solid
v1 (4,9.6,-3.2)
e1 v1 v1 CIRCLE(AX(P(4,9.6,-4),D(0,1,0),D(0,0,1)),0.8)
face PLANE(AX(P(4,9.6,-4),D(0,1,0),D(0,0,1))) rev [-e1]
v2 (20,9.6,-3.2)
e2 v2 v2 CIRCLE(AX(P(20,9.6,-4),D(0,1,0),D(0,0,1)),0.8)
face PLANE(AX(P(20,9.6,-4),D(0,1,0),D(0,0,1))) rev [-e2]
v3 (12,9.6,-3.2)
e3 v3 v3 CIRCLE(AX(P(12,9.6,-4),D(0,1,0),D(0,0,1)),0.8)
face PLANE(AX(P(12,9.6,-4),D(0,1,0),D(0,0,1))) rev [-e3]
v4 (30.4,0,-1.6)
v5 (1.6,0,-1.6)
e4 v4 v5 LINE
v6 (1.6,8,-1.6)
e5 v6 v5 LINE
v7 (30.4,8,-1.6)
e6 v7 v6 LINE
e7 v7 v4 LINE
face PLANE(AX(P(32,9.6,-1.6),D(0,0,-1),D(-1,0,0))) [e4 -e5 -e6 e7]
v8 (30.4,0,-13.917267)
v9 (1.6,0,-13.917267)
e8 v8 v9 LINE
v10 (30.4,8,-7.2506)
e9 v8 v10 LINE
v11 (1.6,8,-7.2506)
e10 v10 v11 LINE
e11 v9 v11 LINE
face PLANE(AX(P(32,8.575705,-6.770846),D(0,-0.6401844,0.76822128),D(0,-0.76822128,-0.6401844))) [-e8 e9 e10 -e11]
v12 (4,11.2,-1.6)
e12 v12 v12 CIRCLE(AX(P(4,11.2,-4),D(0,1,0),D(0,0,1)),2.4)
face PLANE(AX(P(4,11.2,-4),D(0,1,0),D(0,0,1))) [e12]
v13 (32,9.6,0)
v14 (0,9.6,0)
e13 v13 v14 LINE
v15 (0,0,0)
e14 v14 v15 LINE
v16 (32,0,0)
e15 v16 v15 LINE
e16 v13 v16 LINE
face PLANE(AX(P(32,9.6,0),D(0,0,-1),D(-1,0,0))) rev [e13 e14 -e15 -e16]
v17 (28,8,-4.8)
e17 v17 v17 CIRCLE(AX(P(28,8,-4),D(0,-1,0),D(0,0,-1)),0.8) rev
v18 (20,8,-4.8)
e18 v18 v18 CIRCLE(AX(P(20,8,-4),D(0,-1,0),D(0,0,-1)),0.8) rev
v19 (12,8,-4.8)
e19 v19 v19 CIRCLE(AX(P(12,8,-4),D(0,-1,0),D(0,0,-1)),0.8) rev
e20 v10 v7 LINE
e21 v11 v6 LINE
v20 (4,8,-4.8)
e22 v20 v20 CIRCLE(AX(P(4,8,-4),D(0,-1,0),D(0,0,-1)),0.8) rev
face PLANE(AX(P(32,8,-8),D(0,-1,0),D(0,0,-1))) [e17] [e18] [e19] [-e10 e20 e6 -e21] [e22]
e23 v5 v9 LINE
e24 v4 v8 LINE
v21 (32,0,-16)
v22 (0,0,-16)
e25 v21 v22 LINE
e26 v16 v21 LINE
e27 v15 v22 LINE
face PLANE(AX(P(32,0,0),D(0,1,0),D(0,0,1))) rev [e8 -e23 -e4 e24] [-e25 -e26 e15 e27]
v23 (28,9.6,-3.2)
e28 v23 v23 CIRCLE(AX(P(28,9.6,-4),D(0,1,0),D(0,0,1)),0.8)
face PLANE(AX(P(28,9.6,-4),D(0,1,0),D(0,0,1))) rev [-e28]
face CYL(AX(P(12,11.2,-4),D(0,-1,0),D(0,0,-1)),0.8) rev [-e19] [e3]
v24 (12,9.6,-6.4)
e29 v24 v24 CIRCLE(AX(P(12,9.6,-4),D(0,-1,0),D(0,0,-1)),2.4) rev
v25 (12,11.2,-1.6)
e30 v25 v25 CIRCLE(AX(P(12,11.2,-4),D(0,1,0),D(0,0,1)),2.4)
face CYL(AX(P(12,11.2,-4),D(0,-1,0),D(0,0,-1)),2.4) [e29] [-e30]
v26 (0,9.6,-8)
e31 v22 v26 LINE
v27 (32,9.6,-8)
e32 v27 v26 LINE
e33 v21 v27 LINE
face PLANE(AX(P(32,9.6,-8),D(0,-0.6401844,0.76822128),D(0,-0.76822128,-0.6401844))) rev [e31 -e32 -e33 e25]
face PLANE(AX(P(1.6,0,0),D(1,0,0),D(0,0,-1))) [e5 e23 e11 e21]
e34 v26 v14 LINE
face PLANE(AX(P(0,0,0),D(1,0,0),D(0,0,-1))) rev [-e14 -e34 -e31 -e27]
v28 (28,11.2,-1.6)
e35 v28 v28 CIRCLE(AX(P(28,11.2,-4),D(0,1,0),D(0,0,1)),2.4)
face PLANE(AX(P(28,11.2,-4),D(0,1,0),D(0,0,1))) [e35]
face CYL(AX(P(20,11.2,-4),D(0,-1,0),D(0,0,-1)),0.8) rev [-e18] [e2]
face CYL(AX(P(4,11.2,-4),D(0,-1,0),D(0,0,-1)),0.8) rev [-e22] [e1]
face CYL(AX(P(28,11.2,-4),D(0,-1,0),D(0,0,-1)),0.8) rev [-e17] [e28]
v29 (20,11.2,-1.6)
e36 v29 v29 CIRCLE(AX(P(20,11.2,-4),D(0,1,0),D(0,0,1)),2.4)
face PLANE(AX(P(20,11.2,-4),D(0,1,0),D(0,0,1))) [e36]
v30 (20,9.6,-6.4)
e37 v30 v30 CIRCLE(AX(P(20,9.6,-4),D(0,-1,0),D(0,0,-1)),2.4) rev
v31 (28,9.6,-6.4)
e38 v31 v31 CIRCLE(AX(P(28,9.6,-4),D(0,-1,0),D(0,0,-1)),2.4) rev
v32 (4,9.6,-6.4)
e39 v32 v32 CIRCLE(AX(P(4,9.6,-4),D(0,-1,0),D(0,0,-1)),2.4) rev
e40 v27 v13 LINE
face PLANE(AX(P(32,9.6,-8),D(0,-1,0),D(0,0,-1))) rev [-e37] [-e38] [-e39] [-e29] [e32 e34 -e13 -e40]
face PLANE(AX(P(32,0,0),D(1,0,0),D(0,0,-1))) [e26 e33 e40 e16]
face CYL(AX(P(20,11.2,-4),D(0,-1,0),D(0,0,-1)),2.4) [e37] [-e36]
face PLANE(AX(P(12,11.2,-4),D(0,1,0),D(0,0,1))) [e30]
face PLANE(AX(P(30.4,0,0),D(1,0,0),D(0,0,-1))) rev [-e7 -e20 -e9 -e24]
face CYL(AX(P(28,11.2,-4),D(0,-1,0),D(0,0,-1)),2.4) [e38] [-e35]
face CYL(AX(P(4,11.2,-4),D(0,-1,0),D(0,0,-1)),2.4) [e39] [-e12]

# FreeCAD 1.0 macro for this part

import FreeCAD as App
import Part
import Sketcher
from FreeCAD import Vector
Q = App.Units.Quantity


def faces_at(feature, points):
    """Names of the faces that lie closest to the given points."""
    faces = feature.Shape.Faces
    near = lambda p: min(range(len(faces)), key=lambda i: faces[i].distToShape(Part.Vertex(*p))[0])
    return sorted({f"Face{near(p) + 1}" for p in points})

doc = App.newDocument("Part")
params = doc.addObject("Spreadsheet::Sheet", "Params")
for row, (alias, value) in enumerate([
    ("sketch1_height", "16 mm"),
    ("sketch1_height2", "8 mm"),
    ("sketch1_width", "9.6 mm"),
    ("pad1_length", "32 mm"),
    ("sketch2_diameter", "4.8 mm"),
    ("pad2_length", "1.6 mm"),
    ("linearpattern_pitch", "8 mm"),
    ("thickness_wall", "1.6 mm"),
], start=1):
    params.set(f"A{row}", alias)
    params.set(f"B{row}", "=" + value)
    params.setAlias(f"B{row}", alias)

body = doc.addObject("PartDesign::Body", "Body")

sketch1 = body.newObject("Sketcher::SketchObject", "Sketch")
sketch1.AttachmentSupport = (doc.getObject("YZ_Plane"), [""])
sketch1.MapMode = "FlatFace"
sketch1.addGeometry(Part.LineSegment(Vector(0, 0, 0), Vector(0, -16, 0)), False)
sketch1.addGeometry(Part.LineSegment(Vector(0, -16, 0), Vector(10, -8, 0)), False)
sketch1.addGeometry(Part.LineSegment(Vector(10, -8, 0), Vector(10, 0, 0)), False)
sketch1.addGeometry(Part.LineSegment(Vector(10, 0, 0), Vector(0, 0, 0)), False)
sketch1.addConstraint(Sketcher.Constraint("Coincident", 0, 2, 1, 1))
sketch1.addConstraint(Sketcher.Constraint("Coincident", 1, 2, 2, 1))
sketch1.addConstraint(Sketcher.Constraint("Coincident", 2, 2, 3, 1))
sketch1.addConstraint(Sketcher.Constraint("Coincident", 3, 2, 0, 1))
sketch1.addConstraint(Sketcher.Constraint("Vertical", 0))
sketch1.addConstraint(Sketcher.Constraint("Vertical", 2))
sketch1.addConstraint(Sketcher.Constraint("Horizontal", 3))
sketch1.addConstraint(Sketcher.Constraint("Coincident", 3, 2, -1, 1))
sketch1.addConstraint(Sketcher.Constraint("DistanceY", 0, 2, 0, 1, Q("16 mm")))
sketch1.addConstraint(Sketcher.Constraint("DistanceY", 2, 1, 2, 2, Q("8 mm")))
sketch1.addConstraint(Sketcher.Constraint("DistanceX", 3, 2, 3, 1, Q("9.6 mm")))
sketch1.setExpression("Constraints[8]", "Params.sketch1_height")
sketch1.setExpression("Constraints[9]", "Params.sketch1_height2")
sketch1.setExpression("Constraints[10]", "Params.sketch1_width")
pad1 = body.newObject("PartDesign::Pad", "Pad")
pad1.Profile = sketch1
pad1.setExpression("Length", "Params.pad1_length")

sketch2 = body.newObject("Sketcher::SketchObject", "Sketch001")
sketch2.AttachmentSupport = (doc.getObject("XZ_Plane"), [""])
sketch2.MapMode = "FlatFace"
sketch2.AttachmentOffset = App.Placement(Vector(0, 0, -9.6), App.Rotation())
sketch2.addGeometry(Part.Circle(Vector(4, -4, 0), Vector(0, 0, 1), 2.4), False)
sketch2.addConstraint(Sketcher.Constraint("Diameter", 0, Q("4.8 mm")))
sketch2.addConstraint(Sketcher.Constraint("DistanceX", -1, 1, 0, 3, Q("4 mm")))
sketch2.addConstraint(Sketcher.Constraint("DistanceY", 0, 3, -1, 1, Q("4 mm")))
sketch2.setExpression("Constraints[0]", "Params.sketch2_diameter")
pad2 = body.newObject("PartDesign::Pad", "Pad001")
pad2.Profile = sketch2
pad2.setExpression("Length", "Params.pad2_length")
pad2.Reversed = True
doc.recompute()

linearpattern = body.newObject("PartDesign::LinearPattern", "LinearPattern")
linearpattern.Originals = [pad2]
linearpattern.Direction = (doc.getObject("X_Axis"), [""])
linearpattern.Mode = "offset"
linearpattern.setExpression("Offset", "Params.linearpattern_pitch")
linearpattern.Occurrences = 4
body.Tip = linearpattern
doc.recompute()

thickness = body.newObject("PartDesign::Thickness", "Thickness")
thickness.Base = (linearpattern, faces_at(linearpattern, [(16, 0, -8)]))
thickness.setExpression("Value", "Params.thickness_wall")
thickness.Reversed = True
thickness.Join = "Intersection"

doc.recompute()
